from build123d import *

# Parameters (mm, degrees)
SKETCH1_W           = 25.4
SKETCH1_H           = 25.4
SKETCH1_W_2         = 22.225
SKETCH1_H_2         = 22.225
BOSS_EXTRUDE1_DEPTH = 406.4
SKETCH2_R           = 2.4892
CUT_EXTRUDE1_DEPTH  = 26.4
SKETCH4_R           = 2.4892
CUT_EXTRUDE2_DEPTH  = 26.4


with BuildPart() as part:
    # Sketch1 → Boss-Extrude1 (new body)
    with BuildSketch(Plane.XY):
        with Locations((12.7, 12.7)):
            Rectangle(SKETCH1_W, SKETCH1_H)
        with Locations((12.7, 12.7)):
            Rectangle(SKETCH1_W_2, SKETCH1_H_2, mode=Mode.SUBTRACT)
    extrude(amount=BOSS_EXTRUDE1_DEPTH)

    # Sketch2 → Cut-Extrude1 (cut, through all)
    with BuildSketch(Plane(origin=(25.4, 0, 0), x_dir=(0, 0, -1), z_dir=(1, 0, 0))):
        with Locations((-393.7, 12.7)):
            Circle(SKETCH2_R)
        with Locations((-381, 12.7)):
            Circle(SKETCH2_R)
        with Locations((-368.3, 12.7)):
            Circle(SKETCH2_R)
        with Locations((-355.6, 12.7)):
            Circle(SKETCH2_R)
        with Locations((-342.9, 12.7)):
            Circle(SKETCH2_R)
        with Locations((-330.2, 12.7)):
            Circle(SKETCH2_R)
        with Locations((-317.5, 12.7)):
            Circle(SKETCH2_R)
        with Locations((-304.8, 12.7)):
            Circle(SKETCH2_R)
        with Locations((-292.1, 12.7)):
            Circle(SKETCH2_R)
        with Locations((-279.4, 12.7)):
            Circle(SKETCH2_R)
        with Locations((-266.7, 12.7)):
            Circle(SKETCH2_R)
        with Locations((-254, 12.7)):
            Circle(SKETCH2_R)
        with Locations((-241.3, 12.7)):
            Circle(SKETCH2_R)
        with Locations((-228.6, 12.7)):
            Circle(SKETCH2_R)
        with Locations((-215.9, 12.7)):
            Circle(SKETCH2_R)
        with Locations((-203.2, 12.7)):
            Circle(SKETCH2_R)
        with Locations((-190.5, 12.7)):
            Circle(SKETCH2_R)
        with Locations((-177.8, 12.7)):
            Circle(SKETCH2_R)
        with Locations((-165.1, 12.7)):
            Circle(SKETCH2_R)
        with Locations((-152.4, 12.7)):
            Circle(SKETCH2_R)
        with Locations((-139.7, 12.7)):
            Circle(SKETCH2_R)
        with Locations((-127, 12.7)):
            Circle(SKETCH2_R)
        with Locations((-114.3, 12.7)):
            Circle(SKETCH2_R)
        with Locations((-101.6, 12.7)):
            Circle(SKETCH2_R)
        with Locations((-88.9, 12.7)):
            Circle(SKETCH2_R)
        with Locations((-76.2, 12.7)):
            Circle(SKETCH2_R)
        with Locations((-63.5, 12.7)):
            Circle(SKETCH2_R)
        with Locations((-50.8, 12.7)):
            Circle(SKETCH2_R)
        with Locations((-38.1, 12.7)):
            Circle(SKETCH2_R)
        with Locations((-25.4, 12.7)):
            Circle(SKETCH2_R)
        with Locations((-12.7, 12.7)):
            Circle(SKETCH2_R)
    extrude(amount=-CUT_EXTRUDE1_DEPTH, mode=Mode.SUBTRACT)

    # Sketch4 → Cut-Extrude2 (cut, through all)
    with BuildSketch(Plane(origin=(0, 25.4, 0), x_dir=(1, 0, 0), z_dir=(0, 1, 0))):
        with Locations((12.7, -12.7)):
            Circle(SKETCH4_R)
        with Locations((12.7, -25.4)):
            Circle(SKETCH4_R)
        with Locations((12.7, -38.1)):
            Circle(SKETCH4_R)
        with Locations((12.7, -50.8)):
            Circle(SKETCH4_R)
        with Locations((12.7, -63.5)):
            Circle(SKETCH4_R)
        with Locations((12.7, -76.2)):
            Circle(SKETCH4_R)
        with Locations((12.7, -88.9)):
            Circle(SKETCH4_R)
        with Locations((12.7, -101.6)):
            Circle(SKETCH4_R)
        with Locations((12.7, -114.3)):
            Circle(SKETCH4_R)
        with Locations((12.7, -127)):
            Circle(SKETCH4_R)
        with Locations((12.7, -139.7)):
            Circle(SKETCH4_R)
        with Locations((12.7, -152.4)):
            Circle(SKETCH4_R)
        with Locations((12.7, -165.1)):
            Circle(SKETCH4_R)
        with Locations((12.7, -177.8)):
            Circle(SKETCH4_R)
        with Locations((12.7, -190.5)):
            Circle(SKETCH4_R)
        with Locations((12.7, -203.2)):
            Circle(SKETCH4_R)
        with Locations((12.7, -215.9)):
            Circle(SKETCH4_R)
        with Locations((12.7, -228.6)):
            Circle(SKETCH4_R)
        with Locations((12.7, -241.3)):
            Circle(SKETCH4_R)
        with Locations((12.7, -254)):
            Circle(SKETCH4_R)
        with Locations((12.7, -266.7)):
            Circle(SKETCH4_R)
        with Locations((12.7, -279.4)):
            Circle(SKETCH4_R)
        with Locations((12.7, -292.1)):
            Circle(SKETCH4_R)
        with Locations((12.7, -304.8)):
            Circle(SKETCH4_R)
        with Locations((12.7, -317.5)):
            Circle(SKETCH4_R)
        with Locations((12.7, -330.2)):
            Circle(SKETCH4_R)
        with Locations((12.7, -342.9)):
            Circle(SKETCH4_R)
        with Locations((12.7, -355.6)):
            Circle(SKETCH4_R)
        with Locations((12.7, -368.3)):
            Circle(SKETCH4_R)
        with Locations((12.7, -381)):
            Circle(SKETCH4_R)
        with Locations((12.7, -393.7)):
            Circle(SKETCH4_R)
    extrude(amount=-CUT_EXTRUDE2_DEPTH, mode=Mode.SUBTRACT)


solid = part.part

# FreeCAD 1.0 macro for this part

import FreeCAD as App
import Part
import Sketcher
from FreeCAD import Vector
Q = App.Units.Quantity


def add_polygon(sketch, points):
    """Adds a closed chain of lines whose ends are joined by coincident constraints."""
    first, n = sketch.GeometryCount, len(points)
    for a, b in zip(points, points[1:] + points[:1]):
        sketch.addGeometry(Part.LineSegment(App.Vector(*a, 0), App.Vector(*b, 0)), False)
    for i in range(n):
        sketch.addConstraint(Sketcher.Constraint("Coincident", first + i, 2, first + (i + 1) % n, 1))

doc = App.newDocument("Part")
params = doc.addObject("Spreadsheet::Sheet", "Params")
for row, (alias, value) in enumerate([
    ("sketch1_width", "1 in"),
    ("sketch1_width2", "0.875 in"),
    ("pad1_length", "16 in"),
    ("sketch2_diameter", "0.196 in"),
    ("sketch3_diameter", "0.196 in"),
], start=1):
    params.set(f"A{row}", alias)
    params.set(f"B{row}", "=" + value)
    params.setAlias(f"B{row}", alias)

body = doc.addObject("PartDesign::Body", "Body")

sketch1 = body.newObject("Sketcher::SketchObject", "Sketch")
sketch1.AttachmentSupport = (doc.getObject("XY_Plane"), [""])
sketch1.MapMode = "FlatFace"
add_polygon(sketch1, [(0, 25.4), (0, 0), (25.4, 0), (25.4, 25.4)])
add_polygon(sketch1, [(23.8125, 1.5875), (1.5875, 1.5875), (1.5875, 23.8125), (23.8125, 23.8125)])
sketch1.addConstraint(Sketcher.Constraint("Vertical", 0))
sketch1.addConstraint(Sketcher.Constraint("Horizontal", 1))
sketch1.addConstraint(Sketcher.Constraint("Vertical", 2))
sketch1.addConstraint(Sketcher.Constraint("Horizontal", 3))
sketch1.addConstraint(Sketcher.Constraint("Horizontal", 4))
sketch1.addConstraint(Sketcher.Constraint("Vertical", 5))
sketch1.addConstraint(Sketcher.Constraint("Horizontal", 6))
sketch1.addConstraint(Sketcher.Constraint("Vertical", 7))
sketch1.addConstraint(Sketcher.Constraint("Coincident", 0, 2, -1, 1))
sketch1.addConstraint(Sketcher.Constraint("Equal", 3, 0))
sketch1.addConstraint(Sketcher.Constraint("Equal", 6, 5))
sketch1.addConstraint(Sketcher.Constraint("DistanceX", 1, 1, 1, 2, Q("1 in")))
sketch1.addConstraint(Sketcher.Constraint("DistanceX", 4, 2, 4, 1, Q("0.875 in")))
sketch1.addConstraint(Sketcher.Constraint("DistanceX", -1, 1, 4, 2, Q("0.0625 in")))
sketch1.addConstraint(Sketcher.Constraint("DistanceY", -1, 1, 4, 2, Q("0.0625 in")))
sketch1.setExpression("Constraints[19]", "Params.sketch1_width")
sketch1.setExpression("Constraints[20]", "Params.sketch1_width2")
pad1 = body.newObject("PartDesign::Pad", "Pad")
pad1.Profile = sketch1
pad1.setExpression("Length", "Params.pad1_length")

sketch2 = body.newObject("Sketcher::SketchObject", "Sketch001")
sketch2.AttachmentSupport = (doc.getObject("YZ_Plane"), [""])
sketch2.MapMode = "FlatFace"
sketch2.AttachmentOffset = App.Placement(Vector(0, 0, 1 * 25.4), App.Rotation())
sketch2.addGeometry(Part.Circle(Vector(12.7, 393.7, 0), Vector(0, 0, 1), 2.4892), False)
sketch2.addGeometry(Part.Circle(Vector(12.7, 381, 0), Vector(0, 0, 1), 2.4892), False)
sketch2.addGeometry(Part.Circle(Vector(12.7, 368.3, 0), Vector(0, 0, 1), 2.4892), False)
sketch2.addGeometry(Part.Circle(Vector(12.7, 355.6, 0), Vector(0, 0, 1), 2.4892), False)
sketch2.addGeometry(Part.Circle(Vector(12.7, 342.9, 0), Vector(0, 0, 1), 2.4892), False)
sketch2.addGeometry(Part.Circle(Vector(12.7, 330.2, 0), Vector(0, 0, 1), 2.4892), False)
sketch2.addGeometry(Part.Circle(Vector(12.7, 317.5, 0), Vector(0, 0, 1), 2.4892), False)
sketch2.addGeometry(Part.Circle(Vector(12.7, 304.8, 0), Vector(0, 0, 1), 2.4892), False)
sketch2.addGeometry(Part.Circle(Vector(12.7, 292.1, 0), Vector(0, 0, 1), 2.4892), False)
sketch2.addGeometry(Part.Circle(Vector(12.7, 279.4, 0), Vector(0, 0, 1), 2.4892), False)
sketch2.addGeometry(Part.Circle(Vector(12.7, 266.7, 0), Vector(0, 0, 1), 2.4892), False)
sketch2.addGeometry(Part.Circle(Vector(12.7, 254, 0), Vector(0, 0, 1), 2.4892), False)
sketch2.addGeometry(Part.Circle(Vector(12.7, 241.3, 0), Vector(0, 0, 1), 2.4892), False)
sketch2.addGeometry(Part.Circle(Vector(12.7, 228.6, 0), Vector(0, 0, 1), 2.4892), False)
sketch2.addGeometry(Part.Circle(Vector(12.7, 215.9, 0), Vector(0, 0, 1), 2.4892), False)
sketch2.addGeometry(Part.Circle(Vector(12.7, 203.2, 0), Vector(0, 0, 1), 2.4892), False)
sketch2.addGeometry(Part.Circle(Vector(12.7, 190.5, 0), Vector(0, 0, 1), 2.4892), False)
sketch2.addGeometry(Part.Circle(Vector(12.7, 177.8, 0), Vector(0, 0, 1), 2.4892), False)
sketch2.addGeometry(Part.Circle(Vector(12.7, 165.1, 0), Vector(0, 0, 1), 2.4892), False)
sketch2.addGeometry(Part.Circle(Vector(12.7, 152.4, 0), Vector(0, 0, 1), 2.4892), False)
sketch2.addGeometry(Part.Circle(Vector(12.7, 139.7, 0), Vector(0, 0, 1), 2.4892), False)
sketch2.addGeometry(Part.Circle(Vector(12.7, 127, 0), Vector(0, 0, 1), 2.4892), False)
sketch2.addGeometry(Part.Circle(Vector(12.7, 114.3, 0), Vector(0, 0, 1), 2.4892), False)
sketch2.addGeometry(Part.Circle(Vector(12.7, 101.6, 0), Vector(0, 0, 1), 2.4892), False)
sketch2.addGeometry(Part.Circle(Vector(12.7, 88.9, 0), Vector(0, 0, 1), 2.4892), False)
sketch2.addGeometry(Part.Circle(Vector(12.7, 76.2, 0), Vector(0, 0, 1), 2.4892), False)
sketch2.addGeometry(Part.Circle(Vector(12.7, 63.5, 0), Vector(0, 0, 1), 2.4892), False)
sketch2.addGeometry(Part.Circle(Vector(12.7, 50.8, 0), Vector(0, 0, 1), 2.4892), False)
sketch2.addGeometry(Part.Circle(Vector(12.7, 38.1, 0), Vector(0, 0, 1), 2.4892), False)
sketch2.addGeometry(Part.Circle(Vector(12.7, 25.4, 0), Vector(0, 0, 1), 2.4892), False)
sketch2.addGeometry(Part.Circle(Vector(12.7, 12.7, 0), Vector(0, 0, 1), 2.4892), False)
sketch2.addConstraint(Sketcher.Constraint("Equal", 0, 1))
sketch2.addConstraint(Sketcher.Constraint("Equal", 1, 2))
sketch2.addConstraint(Sketcher.Constraint("Equal", 2, 3))
sketch2.addConstraint(Sketcher.Constraint("Equal", 3, 4))
sketch2.addConstraint(Sketcher.Constraint("Equal", 4, 5))
sketch2.addConstraint(Sketcher.Constraint("Equal", 5, 6))
sketch2.addConstraint(Sketcher.Constraint("Equal", 6, 7))
sketch2.addConstraint(Sketcher.Constraint("Equal", 7, 8))
sketch2.addConstraint(Sketcher.Constraint("Equal", 8, 9))
sketch2.addConstraint(Sketcher.Constraint("Equal", 9, 10))
sketch2.addConstraint(Sketcher.Constraint("Equal", 10, 11))
sketch2.addConstraint(Sketcher.Constraint("Equal", 11, 12))
sketch2.addConstraint(Sketcher.Constraint("Equal", 12, 13))
sketch2.addConstraint(Sketcher.Constraint("Equal", 13, 14))
sketch2.addConstraint(Sketcher.Constraint("Equal", 14, 15))
sketch2.addConstraint(Sketcher.Constraint("Equal", 15, 16))
sketch2.addConstraint(Sketcher.Constraint("Equal", 16, 17))
sketch2.addConstraint(Sketcher.Constraint("Equal", 17, 18))
sketch2.addConstraint(Sketcher.Constraint("Equal", 18, 19))
sketch2.addConstraint(Sketcher.Constraint("Equal", 19, 20))
sketch2.addConstraint(Sketcher.Constraint("Equal", 20, 21))
sketch2.addConstraint(Sketcher.Constraint("Equal", 21, 22))
sketch2.addConstraint(Sketcher.Constraint("Equal", 22, 23))
sketch2.addConstraint(Sketcher.Constraint("Equal", 23, 24))
sketch2.addConstraint(Sketcher.Constraint("Equal", 24, 25))
sketch2.addConstraint(Sketcher.Constraint("Equal", 25, 26))
sketch2.addConstraint(Sketcher.Constraint("Equal", 26, 27))
sketch2.addConstraint(Sketcher.Constraint("Equal", 27, 28))
sketch2.addConstraint(Sketcher.Constraint("Equal", 28, 29))
sketch2.addConstraint(Sketcher.Constraint("Equal", 29, 30))
sketch2.addConstraint(Sketcher.Constraint("Vertical", 0, 3, 1, 3))
sketch2.addConstraint(Sketcher.Constraint("Vertical", 1, 3, 2, 3))
sketch2.addConstraint(Sketcher.Constraint("Vertical", 2, 3, 3, 3))
sketch2.addConstraint(Sketcher.Constraint("Vertical", 3, 3, 4, 3))
sketch2.addConstraint(Sketcher.Constraint("Vertical", 4, 3, 5, 3))
sketch2.addConstraint(Sketcher.Constraint("Vertical", 5, 3, 6, 3))
sketch2.addConstraint(Sketcher.Constraint("Vertical", 6, 3, 7, 3))
sketch2.addConstraint(Sketcher.Constraint("Vertical", 7, 3, 8, 3))
sketch2.addConstraint(Sketcher.Constraint("Vertical", 8, 3, 9, 3))
sketch2.addConstraint(Sketcher.Constraint("Vertical", 9, 3, 10, 3))
sketch2.addConstraint(Sketcher.Constraint("Vertical", 10, 3, 11, 3))
sketch2.addConstraint(Sketcher.Constraint("Vertical", 11, 3, 12, 3))
sketch2.addConstraint(Sketcher.Constraint("Vertical", 12, 3, 13, 3))
sketch2.addConstraint(Sketcher.Constraint("Vertical", 13, 3, 14, 3))
sketch2.addConstraint(Sketcher.Constraint("Vertical", 14, 3, 15, 3))
sketch2.addConstraint(Sketcher.Constraint("Vertical", 15, 3, 16, 3))
sketch2.addConstraint(Sketcher.Constraint("Vertical", 16, 3, 17, 3))
sketch2.addConstraint(Sketcher.Constraint("Vertical", 17, 3, 18, 3))
sketch2.addConstraint(Sketcher.Constraint("Vertical", 18, 3, 19, 3))
sketch2.addConstraint(Sketcher.Constraint("Vertical", 19, 3, 20, 3))
sketch2.addConstraint(Sketcher.Constraint("Vertical", 20, 3, 21, 3))
sketch2.addConstraint(Sketcher.Constraint("Vertical", 21, 3, 22, 3))
sketch2.addConstraint(Sketcher.Constraint("Vertical", 22, 3, 23, 3))
sketch2.addConstraint(Sketcher.Constraint("Vertical", 23, 3, 24, 3))
sketch2.addConstraint(Sketcher.Constraint("Vertical", 24, 3, 25, 3))
sketch2.addConstraint(Sketcher.Constraint("Vertical", 25, 3, 26, 3))
sketch2.addConstraint(Sketcher.Constraint("Vertical", 26, 3, 27, 3))
sketch2.addConstraint(Sketcher.Constraint("Vertical", 27, 3, 28, 3))
sketch2.addConstraint(Sketcher.Constraint("Vertical", 28, 3, 29, 3))
sketch2.addConstraint(Sketcher.Constraint("Vertical", 29, 3, 30, 3))
sketch2.addConstraint(Sketcher.Constraint("Diameter", 0, Q("0.196 in")))
sketch2.addConstraint(Sketcher.Constraint("DistanceY", -1, 1, 1, 3, Q("15 in")))
sketch2.addConstraint(Sketcher.Constraint("DistanceY", -1, 1, 3, 3, Q("14 in")))
sketch2.addConstraint(Sketcher.Constraint("DistanceY", -1, 1, 5, 3, Q("13 in")))
sketch2.addConstraint(Sketcher.Constraint("DistanceY", -1, 1, 7, 3, Q("12 in")))
sketch2.addConstraint(Sketcher.Constraint("DistanceY", -1, 1, 9, 3, Q("11 in")))
sketch2.addConstraint(Sketcher.Constraint("DistanceY", -1, 1, 11, 3, Q("10 in")))
sketch2.addConstraint(Sketcher.Constraint("DistanceY", -1, 1, 13, 3, Q("9 in")))
sketch2.addConstraint(Sketcher.Constraint("DistanceY", -1, 1, 15, 3, Q("8 in")))
sketch2.addConstraint(Sketcher.Constraint("DistanceY", -1, 1, 17, 3, Q("7 in")))
sketch2.addConstraint(Sketcher.Constraint("DistanceY", -1, 1, 19, 3, Q("6 in")))
sketch2.addConstraint(Sketcher.Constraint("DistanceY", -1, 1, 21, 3, Q("5 in")))
sketch2.addConstraint(Sketcher.Constraint("DistanceY", -1, 1, 23, 3, Q("4 in")))
sketch2.addConstraint(Sketcher.Constraint("DistanceY", -1, 1, 25, 3, Q("3 in")))
sketch2.addConstraint(Sketcher.Constraint("DistanceY", -1, 1, 27, 3, Q("2 in")))
sketch2.addConstraint(Sketcher.Constraint("DistanceY", -1, 1, 29, 3, Q("1 in")))
sketch2.addConstraint(Sketcher.Constraint("DistanceY", 2, 3, 0, 3, Q("1 in")))
sketch2.addConstraint(Sketcher.Constraint("DistanceY", 4, 3, 2, 3, Q("1 in")))
sketch2.addConstraint(Sketcher.Constraint("DistanceY", 6, 3, 4, 3, Q("1 in")))
sketch2.addConstraint(Sketcher.Constraint("DistanceY", 8, 3, 6, 3, Q("1 in")))
sketch2.addConstraint(Sketcher.Constraint("DistanceY", 10, 3, 8, 3, Q("1 in")))
sketch2.addConstraint(Sketcher.Constraint("DistanceY", 12, 3, 10, 3, Q("1 in")))
sketch2.addConstraint(Sketcher.Constraint("DistanceY", 14, 3, 12, 3, Q("1 in")))
sketch2.addConstraint(Sketcher.Constraint("DistanceY", 16, 3, 14, 3, Q("1 in")))
sketch2.addConstraint(Sketcher.Constraint("DistanceY", 18, 3, 16, 3, Q("1 in")))
sketch2.addConstraint(Sketcher.Constraint("DistanceY", 20, 3, 18, 3, Q("1 in")))
sketch2.addConstraint(Sketcher.Constraint("DistanceY", 22, 3, 20, 3, Q("1 in")))
sketch2.addConstraint(Sketcher.Constraint("DistanceY", 24, 3, 22, 3, Q("1 in")))
sketch2.addConstraint(Sketcher.Constraint("DistanceY", 26, 3, 24, 3, Q("1 in")))
sketch2.addConstraint(Sketcher.Constraint("DistanceY", 28, 3, 26, 3, Q("1 in")))
sketch2.addConstraint(Sketcher.Constraint("DistanceY", 30, 3, 28, 3, Q("1 in")))
sketch2.addConstraint(Sketcher.Constraint("DistanceX", -1, 1, 0, 3, Q("0.5 in")))
sketch2.addConstraint(Sketcher.Constraint("DistanceY", -1, 1, 0, 3, Q("15.5 in")))
sketch2.setExpression("Constraints[60]", "Params.sketch2_diameter")
pocket1 = body.newObject("PartDesign::Pocket", "Pocket")
pocket1.Profile = sketch2
pocket1.Type = "ThroughAll"

sketch3 = body.newObject("Sketcher::SketchObject", "Sketch002")
sketch3.AttachmentSupport = (doc.getObject("XZ_Plane"), [""])
sketch3.MapMode = "FlatFace"
sketch3.AttachmentOffset = App.Placement(Vector(0, 0, -1 * 25.4), App.Rotation())
sketch3.addGeometry(Part.Circle(Vector(12.7, 12.7, 0), Vector(0, 0, 1), 2.4892), False)
sketch3.addGeometry(Part.Circle(Vector(12.7, 25.4, 0), Vector(0, 0, 1), 2.4892), False)
sketch3.addGeometry(Part.Circle(Vector(12.7, 38.1, 0), Vector(0, 0, 1), 2.4892), False)
sketch3.addGeometry(Part.Circle(Vector(12.7, 50.8, 0), Vector(0, 0, 1), 2.4892), False)
sketch3.addGeometry(Part.Circle(Vector(12.7, 63.5, 0), Vector(0, 0, 1), 2.4892), False)
sketch3.addGeometry(Part.Circle(Vector(12.7, 76.2, 0), Vector(0, 0, 1), 2.4892), False)
sketch3.addGeometry(Part.Circle(Vector(12.7, 88.9, 0), Vector(0, 0, 1), 2.4892), False)
sketch3.addGeometry(Part.Circle(Vector(12.7, 101.6, 0), Vector(0, 0, 1), 2.4892), False)
sketch3.addGeometry(Part.Circle(Vector(12.7, 114.3, 0), Vector(0, 0, 1), 2.4892), False)
sketch3.addGeometry(Part.Circle(Vector(12.7, 127, 0), Vector(0, 0, 1), 2.4892), False)
sketch3.addGeometry(Part.Circle(Vector(12.7, 139.7, 0), Vector(0, 0, 1), 2.4892), False)
sketch3.addGeometry(Part.Circle(Vector(12.7, 152.4, 0), Vector(0, 0, 1), 2.4892), False)
sketch3.addGeometry(Part.Circle(Vector(12.7, 165.1, 0), Vector(0, 0, 1), 2.4892), False)
sketch3.addGeometry(Part.Circle(Vector(12.7, 177.8, 0), Vector(0, 0, 1), 2.4892), False)
sketch3.addGeometry(Part.Circle(Vector(12.7, 190.5, 0), Vector(0, 0, 1), 2.4892), False)
sketch3.addGeometry(Part.Circle(Vector(12.7, 203.2, 0), Vector(0, 0, 1), 2.4892), False)
sketch3.addGeometry(Part.Circle(Vector(12.7, 215.9, 0), Vector(0, 0, 1), 2.4892), False)
sketch3.addGeometry(Part.Circle(Vector(12.7, 228.6, 0), Vector(0, 0, 1), 2.4892), False)
sketch3.addGeometry(Part.Circle(Vector(12.7, 241.3, 0), Vector(0, 0, 1), 2.4892), False)
sketch3.addGeometry(Part.Circle(Vector(12.7, 254, 0), Vector(0, 0, 1), 2.4892), False)
sketch3.addGeometry(Part.Circle(Vector(12.7, 266.7, 0), Vector(0, 0, 1), 2.4892), False)
sketch3.addGeometry(Part.Circle(Vector(12.7, 279.4, 0), Vector(0, 0, 1), 2.4892), False)
sketch3.addGeometry(Part.Circle(Vector(12.7, 292.1, 0), Vector(0, 0, 1), 2.4892), False)
sketch3.addGeometry(Part.Circle(Vector(12.7, 304.8, 0), Vector(0, 0, 1), 2.4892), False)
sketch3.addGeometry(Part.Circle(Vector(12.7, 317.5, 0), Vector(0, 0, 1), 2.4892), False)
sketch3.addGeometry(Part.Circle(Vector(12.7, 330.2, 0), Vector(0, 0, 1), 2.4892), False)
sketch3.addGeometry(Part.Circle(Vector(12.7, 342.9, 0), Vector(0, 0, 1), 2.4892), False)
sketch3.addGeometry(Part.Circle(Vector(12.7, 355.6, 0), Vector(0, 0, 1), 2.4892), False)
sketch3.addGeometry(Part.Circle(Vector(12.7, 368.3, 0), Vector(0, 0, 1), 2.4892), False)
sketch3.addGeometry(Part.Circle(Vector(12.7, 381, 0), Vector(0, 0, 1), 2.4892), False)
sketch3.addGeometry(Part.Circle(Vector(12.7, 393.7, 0), Vector(0, 0, 1), 2.4892), False)
sketch3.addConstraint(Sketcher.Constraint("Equal", 0, 1))
sketch3.addConstraint(Sketcher.Constraint("Equal", 1, 2))
sketch3.addConstraint(Sketcher.Constraint("Equal", 2, 3))
sketch3.addConstraint(Sketcher.Constraint("Equal", 3, 4))
sketch3.addConstraint(Sketcher.Constraint("Equal", 4, 5))
sketch3.addConstraint(Sketcher.Constraint("Equal", 5, 6))
sketch3.addConstraint(Sketcher.Constraint("Equal", 6, 7))
sketch3.addConstraint(Sketcher.Constraint("Equal", 7, 8))
sketch3.addConstraint(Sketcher.Constraint("Equal", 8, 9))
sketch3.addConstraint(Sketcher.Constraint("Equal", 9, 10))
sketch3.addConstraint(Sketcher.Constraint("Equal", 10, 11))
sketch3.addConstraint(Sketcher.Constraint("Equal", 11, 12))
sketch3.addConstraint(Sketcher.Constraint("Equal", 12, 13))
sketch3.addConstraint(Sketcher.Constraint("Equal", 13, 14))
sketch3.addConstraint(Sketcher.Constraint("Equal", 14, 15))
sketch3.addConstraint(Sketcher.Constraint("Equal", 15, 16))
sketch3.addConstraint(Sketcher.Constraint("Equal", 16, 17))
sketch3.addConstraint(Sketcher.Constraint("Equal", 17, 18))
sketch3.addConstraint(Sketcher.Constraint("Equal", 18, 19))
sketch3.addConstraint(Sketcher.Constraint("Equal", 19, 20))
sketch3.addConstraint(Sketcher.Constraint("Equal", 20, 21))
sketch3.addConstraint(Sketcher.Constraint("Equal", 21, 22))
sketch3.addConstraint(Sketcher.Constraint("Equal", 22, 23))
sketch3.addConstraint(Sketcher.Constraint("Equal", 23, 24))
sketch3.addConstraint(Sketcher.Constraint("Equal", 24, 25))
sketch3.addConstraint(Sketcher.Constraint("Equal", 25, 26))
sketch3.addConstraint(Sketcher.Constraint("Equal", 26, 27))
sketch3.addConstraint(Sketcher.Constraint("Equal", 27, 28))
sketch3.addConstraint(Sketcher.Constraint("Equal", 28, 29))
sketch3.addConstraint(Sketcher.Constraint("Equal", 29, 30))
sketch3.addConstraint(Sketcher.Constraint("Vertical", 0, 3, 1, 3))
sketch3.addConstraint(Sketcher.Constraint("Vertical", 1, 3, 2, 3))
sketch3.addConstraint(Sketcher.Constraint("Vertical", 2, 3, 3, 3))
sketch3.addConstraint(Sketcher.Constraint("Vertical", 3, 3, 4, 3))
sketch3.addConstraint(Sketcher.Constraint("Vertical", 4, 3, 5, 3))
sketch3.addConstraint(Sketcher.Constraint("Vertical", 5, 3, 6, 3))
sketch3.addConstraint(Sketcher.Constraint("Vertical", 6, 3, 7, 3))
sketch3.addConstraint(Sketcher.Constraint("Vertical", 7, 3, 8, 3))
sketch3.addConstraint(Sketcher.Constraint("Vertical", 8, 3, 9, 3))
sketch3.addConstraint(Sketcher.Constraint("Vertical", 9, 3, 10, 3))
sketch3.addConstraint(Sketcher.Constraint("Vertical", 10, 3, 11, 3))
sketch3.addConstraint(Sketcher.Constraint("Vertical", 11, 3, 12, 3))
sketch3.addConstraint(Sketcher.Constraint("Vertical", 12, 3, 13, 3))
sketch3.addConstraint(Sketcher.Constraint("Vertical", 13, 3, 14, 3))
sketch3.addConstraint(Sketcher.Constraint("Vertical", 14, 3, 15, 3))
sketch3.addConstraint(Sketcher.Constraint("Vertical", 15, 3, 16, 3))
sketch3.addConstraint(Sketcher.Constraint("Vertical", 16, 3, 17, 3))
sketch3.addConstraint(Sketcher.Constraint("Vertical", 17, 3, 18, 3))
sketch3.addConstraint(Sketcher.Constraint("Vertical", 18, 3, 19, 3))
sketch3.addConstraint(Sketcher.Constraint("Vertical", 19, 3, 20, 3))
sketch3.addConstraint(Sketcher.Constraint("Vertical", 20, 3, 21, 3))
sketch3.addConstraint(Sketcher.Constraint("Vertical", 21, 3, 22, 3))
sketch3.addConstraint(Sketcher.Constraint("Vertical", 22, 3, 23, 3))
sketch3.addConstraint(Sketcher.Constraint("Vertical", 23, 3, 24, 3))
sketch3.addConstraint(Sketcher.Constraint("Vertical", 24, 3, 25, 3))
sketch3.addConstraint(Sketcher.Constraint("Vertical", 25, 3, 26, 3))
sketch3.addConstraint(Sketcher.Constraint("Vertical", 26, 3, 27, 3))
sketch3.addConstraint(Sketcher.Constraint("Vertical", 27, 3, 28, 3))
sketch3.addConstraint(Sketcher.Constraint("Vertical", 28, 3, 29, 3))
sketch3.addConstraint(Sketcher.Constraint("Vertical", 29, 3, 30, 3))
sketch3.addConstraint(Sketcher.Constraint("Diameter", 0, Q("0.196 in")))
sketch3.addConstraint(Sketcher.Constraint("DistanceY", -1, 1, 1, 3, Q("1 in")))
sketch3.addConstraint(Sketcher.Constraint("DistanceY", -1, 1, 3, 3, Q("2 in")))
sketch3.addConstraint(Sketcher.Constraint("DistanceY", -1, 1, 5, 3, Q("3 in")))
sketch3.addConstraint(Sketcher.Constraint("DistanceY", -1, 1, 7, 3, Q("4 in")))
sketch3.addConstraint(Sketcher.Constraint("DistanceY", -1, 1, 9, 3, Q("5 in")))
sketch3.addConstraint(Sketcher.Constraint("DistanceY", -1, 1, 11, 3, Q("6 in")))
sketch3.addConstraint(Sketcher.Constraint("DistanceY", -1, 1, 13, 3, Q("7 in")))
sketch3.addConstraint(Sketcher.Constraint("DistanceY", -1, 1, 15, 3, Q("8 in")))
sketch3.addConstraint(Sketcher.Constraint("DistanceY", -1, 1, 17, 3, Q("9 in")))
sketch3.addConstraint(Sketcher.Constraint("DistanceY", -1, 1, 19, 3, Q("10 in")))
sketch3.addConstraint(Sketcher.Constraint("DistanceY", -1, 1, 21, 3, Q("11 in")))
sketch3.addConstraint(Sketcher.Constraint("DistanceY", -1, 1, 23, 3, Q("12 in")))
sketch3.addConstraint(Sketcher.Constraint("DistanceY", -1, 1, 25, 3, Q("13 in")))
sketch3.addConstraint(Sketcher.Constraint("DistanceY", -1, 1, 27, 3, Q("14 in")))
sketch3.addConstraint(Sketcher.Constraint("DistanceY", -1, 1, 29, 3, Q("15 in")))
sketch3.addConstraint(Sketcher.Constraint("DistanceY", 0, 3, 2, 3, Q("1 in")))
sketch3.addConstraint(Sketcher.Constraint("DistanceY", 2, 3, 4, 3, Q("1 in")))
sketch3.addConstraint(Sketcher.Constraint("DistanceY", 4, 3, 6, 3, Q("1 in")))
sketch3.addConstraint(Sketcher.Constraint("DistanceY", 6, 3, 8, 3, Q("1 in")))
sketch3.addConstraint(Sketcher.Constraint("DistanceY", 8, 3, 10, 3, Q("1 in")))
sketch3.addConstraint(Sketcher.Constraint("DistanceY", 10, 3, 12, 3, Q("1 in")))
sketch3.addConstraint(Sketcher.Constraint("DistanceY", 12, 3, 14, 3, Q("1 in")))
sketch3.addConstraint(Sketcher.Constraint("DistanceY", 14, 3, 16, 3, Q("1 in")))
sketch3.addConstraint(Sketcher.Constraint("DistanceY", 16, 3, 18, 3, Q("1 in")))
sketch3.addConstraint(Sketcher.Constraint("DistanceY", 18, 3, 20, 3, Q("1 in")))
sketch3.addConstraint(Sketcher.Constraint("DistanceY", 20, 3, 22, 3, Q("1 in")))
sketch3.addConstraint(Sketcher.Constraint("DistanceY", 22, 3, 24, 3, Q("1 in")))
sketch3.addConstraint(Sketcher.Constraint("DistanceY", 24, 3, 26, 3, Q("1 in")))
sketch3.addConstraint(Sketcher.Constraint("DistanceY", 26, 3, 28, 3, Q("1 in")))
sketch3.addConstraint(Sketcher.Constraint("DistanceY", 28, 3, 30, 3, Q("1 in")))
sketch3.addConstraint(Sketcher.Constraint("DistanceX", -1, 1, 0, 3, Q("0.5 in")))
sketch3.addConstraint(Sketcher.Constraint("DistanceY", -1, 1, 0, 3, Q("0.5 in")))
sketch3.setExpression("Constraints[60]", "Params.sketch3_diameter")
pocket2 = body.newObject("PartDesign::Pocket", "Pocket001")
pocket2.Profile = sketch3
pocket2.Type = "ThroughAll"
pocket2.Reversed = True

doc.recompute()
